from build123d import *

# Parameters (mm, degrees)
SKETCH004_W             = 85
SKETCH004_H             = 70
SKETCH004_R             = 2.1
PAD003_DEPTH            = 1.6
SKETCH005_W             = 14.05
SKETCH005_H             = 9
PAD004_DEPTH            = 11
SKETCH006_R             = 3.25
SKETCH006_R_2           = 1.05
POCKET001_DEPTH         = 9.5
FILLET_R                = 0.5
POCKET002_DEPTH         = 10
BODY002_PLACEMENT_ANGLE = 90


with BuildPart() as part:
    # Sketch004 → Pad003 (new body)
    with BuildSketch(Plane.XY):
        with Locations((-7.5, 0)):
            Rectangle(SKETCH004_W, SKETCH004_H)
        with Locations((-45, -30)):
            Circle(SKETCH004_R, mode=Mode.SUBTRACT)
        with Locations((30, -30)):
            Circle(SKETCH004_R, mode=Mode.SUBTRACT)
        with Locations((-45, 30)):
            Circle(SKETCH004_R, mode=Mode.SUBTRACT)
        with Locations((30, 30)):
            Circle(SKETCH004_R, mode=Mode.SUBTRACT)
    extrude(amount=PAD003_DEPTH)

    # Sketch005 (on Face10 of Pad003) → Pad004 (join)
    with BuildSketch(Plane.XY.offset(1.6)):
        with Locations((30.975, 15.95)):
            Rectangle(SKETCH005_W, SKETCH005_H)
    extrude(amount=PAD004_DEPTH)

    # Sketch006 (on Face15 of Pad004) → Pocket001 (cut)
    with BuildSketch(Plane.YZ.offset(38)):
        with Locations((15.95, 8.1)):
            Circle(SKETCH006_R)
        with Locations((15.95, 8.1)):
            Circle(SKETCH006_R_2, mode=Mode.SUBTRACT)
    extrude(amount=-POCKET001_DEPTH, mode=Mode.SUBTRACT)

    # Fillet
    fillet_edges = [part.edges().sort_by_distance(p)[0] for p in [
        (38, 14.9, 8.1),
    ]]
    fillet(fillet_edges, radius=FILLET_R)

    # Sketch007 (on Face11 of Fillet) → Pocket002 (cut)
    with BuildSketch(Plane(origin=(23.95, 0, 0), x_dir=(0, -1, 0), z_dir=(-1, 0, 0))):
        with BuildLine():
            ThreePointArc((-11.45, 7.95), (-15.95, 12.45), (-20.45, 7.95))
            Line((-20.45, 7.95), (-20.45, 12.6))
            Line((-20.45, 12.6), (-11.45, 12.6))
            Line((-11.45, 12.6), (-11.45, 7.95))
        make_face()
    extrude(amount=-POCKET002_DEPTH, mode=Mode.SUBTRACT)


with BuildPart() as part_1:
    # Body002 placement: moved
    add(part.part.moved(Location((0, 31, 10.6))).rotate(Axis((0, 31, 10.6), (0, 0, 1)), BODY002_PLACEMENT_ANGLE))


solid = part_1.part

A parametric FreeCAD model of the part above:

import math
import FreeCAD as App
import Part
import Sketcher
from FreeCAD import Vector


def edges_at(feature, points):
    """Names of the edges that pass closest to the given points."""
    edges = feature.Shape.Edges
    near = lambda p: min(range(len(edges)), key=lambda i: edges[i].distToShape(Part.Vertex(*p))[0])
    return sorted({f"Edge{near(p) + 1}" for p in points})


def add_polygon(sketch, points):
    """Adds a closed chain of lines whose ends are joined by coincident constraints."""
    first, n = sketch.GeometryCount, len(points)
    for a, b in zip(points, points[1:] + points[:1]):
        sketch.addGeometry(Part.LineSegment(App.Vector(*a, 0), App.Vector(*b, 0)), False)
    for i in range(n):
        sketch.addConstraint(Sketcher.Constraint("Coincident", first + i, 2, first + (i + 1) % n, 1))

doc = App.newDocument("Part")
body = doc.addObject("PartDesign::Body", "Body")

# Sketch on XY plane
sketch1 = body.newObject("Sketcher::SketchObject", "Sketch")
sketch1.AttachmentSupport = (doc.getObject("XY_Plane"), [""])
sketch1.MapMode = "FlatFace"
add_polygon(sketch1, [(-50, 35), (-50, -35), (35, -35), (35, 35)])  # lines 0-3
sketch1.addGeometry(Part.Circle(Vector(-45, -30, 0), Vector(0, 0, 1), 2.1), False)  # 4
sketch1.addGeometry(Part.Circle(Vector(30, -30, 0), Vector(0, 0, 1), 2.1), False)  # 5
sketch1.addGeometry(Part.Circle(Vector(-45, 30, 0), Vector(0, 0, 1), 2.1), False)  # 6
sketch1.addGeometry(Part.Circle(Vector(30, 30, 0), Vector(0, 0, 1), 2.1), False)  # 7
sketch1.addConstraint(Sketcher.Constraint("Vertical", 0))
sketch1.addConstraint(Sketcher.Constraint("Horizontal", 1))
sketch1.addConstraint(Sketcher.Constraint("Vertical", 2))
sketch1.addConstraint(Sketcher.Constraint("Horizontal", 3))
sketch1.addConstraint(Sketcher.Constraint("Equal", 4, 5))
sketch1.addConstraint(Sketcher.Constraint("Equal", 5, 6))
sketch1.addConstraint(Sketcher.Constraint("Equal", 6, 7))
sketch1.addConstraint(Sketcher.Constraint("Symmetric", 4, 3, 6, 3, -1))
sketch1.addConstraint(Sketcher.Constraint("Symmetric", 5, 3, 7, 3, -1))
sketch1.addConstraint(Sketcher.Constraint("Horizontal", 4, 3, 5, 3))
sketch1.addConstraint(Sketcher.Constraint("Diameter", 4, 4.2))
sketch1.addConstraint(Sketcher.Constraint("DistanceX", 1, 1, 1, 2, 85.0))
sketch1.addConstraint(Sketcher.Constraint("DistanceY", 0, 2, 0, 1, 70.0))
sketch1.addConstraint(Sketcher.Constraint("DistanceX", 4, 3, -1, 1, 45.0))
sketch1.addConstraint(Sketcher.Constraint("DistanceY", 4, 3, -1, 1, 30.0))
sketch1.addConstraint(Sketcher.Constraint("DistanceX", -1, 1, 5, 3, 30.0))
sketch1.addConstraint(Sketcher.Constraint("DistanceX", 0, 2, -1, 1, 50.0))
sketch1.addConstraint(Sketcher.Constraint("DistanceY", 0, 2, -1, 1, 35.0))
pad1 = body.newObject("PartDesign::Pad", "Pad")
pad1.Profile = sketch1
pad1.Length = 1.6

# Sketch on XY plane
sketch2 = body.newObject("Sketcher::SketchObject", "Sketch001")
sketch2.AttachmentSupport = (doc.getObject("XY_Plane"), [""])
sketch2.MapMode = "FlatFace"
sketch2.AttachmentOffset = App.Placement(Vector(0, 0, 1.6), App.Rotation())
add_polygon(sketch2, [(24, 20), (24, 11), (38, 11), (38, 20)])  # lines 0-3
sketch2.addConstraint(Sketcher.Constraint("Vertical", 0))
sketch2.addConstraint(Sketcher.Constraint("Horizontal", 1))
sketch2.addConstraint(Sketcher.Constraint("Vertical", 2))
sketch2.addConstraint(Sketcher.Constraint("Horizontal", 3))
sketch2.addConstraint(Sketcher.Constraint("DistanceY", 0, 2, 0, 1, 9.0))
sketch2.addConstraint(Sketcher.Constraint("DistanceX", -1, 1, 1, 2, 38.0))
sketch2.addConstraint(Sketcher.Constraint("DistanceX", 1, 1, 1, 2, 14.05))
sketch2.addConstraint(Sketcher.Constraint("DistanceY", -1, 1, 0, 2, 11.45))
pad2 = body.newObject("PartDesign::Pad", "Pad001")
pad2.Profile = sketch2
pad2.Length = 11

# Sketch on YZ plane
sketch3 = body.newObject("Sketcher::SketchObject", "Sketch002")
sketch3.AttachmentSupport = (doc.getObject("YZ_Plane"), [""])
sketch3.MapMode = "FlatFace"
sketch3.AttachmentOffset = App.Placement(Vector(0, 0, 38), App.Rotation())
sketch3.addGeometry(Part.Circle(Vector(15.9, 8.1, 0), Vector(0, 0, 1), 3.2), False)
sketch3.addGeometry(Part.Circle(Vector(15.9, 8.1, 0), Vector(0, 0, 1), 1.1), False)
sketch3.addConstraint(Sketcher.Constraint("Coincident", 1, 3, 0, 3))
sketch3.addConstraint(Sketcher.Constraint("Diameter", 0, 6.5))
sketch3.addConstraint(Sketcher.Constraint("Diameter", 1, 2.1))
sketch3.addConstraint(Sketcher.Constraint("DistanceY", -1, 1, 0, 3, 8.1))
sketch3.addConstraint(Sketcher.Constraint("DistanceX", -1, 1, 0, 3, 15.95))
pocket1 = body.newObject("PartDesign::Pocket", "Pocket")
pocket1.Profile = sketch3
pocket1.Length = 9.5
doc.recompute()

fillet = body.newObject("PartDesign::Fillet", "Fillet")
fillet.Base = (pocket1, edges_at(pocket1, [(38, 14.9, 8.1)]))
fillet.Radius = 0.5

# Sketch on YZ plane
sketch4 = body.newObject("Sketcher::SketchObject", "Sketch003")
sketch4.AttachmentSupport = (doc.getObject("YZ_Plane"), [""])
sketch4.MapMode = "FlatFace"
sketch4.AttachmentOffset = App.Placement(Vector(0, 0, 23.95), App.Rotation())
sketch4.addGeometry(Part.ArcOfCircle(Part.Circle(Vector(15.9, 8, 0), Vector(0, 0, 1), 4.5), math.radians(0), math.radians(180)), False)
sketch4.addGeometry(Part.LineSegment(Vector(11.4, 8, 0), Vector(11.4, 12.6, 0)), False)
sketch4.addGeometry(Part.LineSegment(Vector(11.4, 12.6, 0), Vector(20.4, 12.6, 0)), False)
sketch4.addGeometry(Part.LineSegment(Vector(20.4, 12.6, 0), Vector(20.4, 8, 0)), False)
sketch4.addConstraint(Sketcher.Constraint("Tangent", 0, 2, 1, 1))
sketch4.addConstraint(Sketcher.Constraint("Coincident", 1, 2, 2, 1))
sketch4.addConstraint(Sketcher.Constraint("Coincident", 2, 2, 3, 1))
sketch4.addConstraint(Sketcher.Constraint("Tangent", 3, 2, 0, 1))
sketch4.addConstraint(Sketcher.Constraint("Vertical", 1))
sketch4.addConstraint(Sketcher.Constraint("Horizontal", 2))
sketch4.addConstraint(Sketcher.Constraint("Vertical", 3))
sketch4.addConstraint(Sketcher.Constraint("Radius", 0, 4.5))
sketch4.addConstraint(Sketcher.Constraint("DistanceY", 1, 1, 1, 2, 4.65))
sketch4.addConstraint(Sketcher.Constraint("DistanceY", -1, 1, 1, 2, 12.6))
sketch4.addConstraint(Sketcher.Constraint("DistanceX", -1, 1, 0, 3, 15.95))
pocket2 = body.newObject("PartDesign::Pocket", "Pocket001")
pocket2.Profile = sketch4
pocket2.Length = 10
pocket2.Reversed = True
body2 = doc.addObject("PartDesign::Body", "Body001")
doc.recompute()

body.Placement = App.Placement(Vector(0, 31, 10.6), App.Rotation(Vector(0, 0, 1), 90))
boolean = body2.newObject("PartDesign::Boolean", "Boolean")
boolean.Type = "Fuse"
boolean.addObjects([body])

doc.recompute()
